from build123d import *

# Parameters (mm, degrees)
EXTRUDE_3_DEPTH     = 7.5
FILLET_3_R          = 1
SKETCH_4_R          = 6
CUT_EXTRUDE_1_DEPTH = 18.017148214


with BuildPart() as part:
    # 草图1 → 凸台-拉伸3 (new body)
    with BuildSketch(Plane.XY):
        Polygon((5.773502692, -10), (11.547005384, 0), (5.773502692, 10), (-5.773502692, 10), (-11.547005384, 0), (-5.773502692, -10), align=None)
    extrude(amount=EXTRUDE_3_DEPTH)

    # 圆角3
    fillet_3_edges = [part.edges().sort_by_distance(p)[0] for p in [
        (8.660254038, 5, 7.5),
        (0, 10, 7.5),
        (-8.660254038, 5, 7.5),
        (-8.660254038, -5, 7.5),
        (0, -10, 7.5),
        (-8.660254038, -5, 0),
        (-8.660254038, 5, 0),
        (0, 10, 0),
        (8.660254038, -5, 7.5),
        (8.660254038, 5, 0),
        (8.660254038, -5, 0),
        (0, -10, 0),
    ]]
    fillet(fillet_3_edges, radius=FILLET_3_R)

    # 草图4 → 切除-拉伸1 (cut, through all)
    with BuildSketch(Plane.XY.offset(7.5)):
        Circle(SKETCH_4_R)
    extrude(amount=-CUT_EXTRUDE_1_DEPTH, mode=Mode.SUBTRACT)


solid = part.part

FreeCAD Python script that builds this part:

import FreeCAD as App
import Part
import Sketcher
from FreeCAD import Vector
Q = App.Units.Quantity


def edges_at(feature, points):
    """Names of the edges that pass closest to the given points."""
    edges = feature.Shape.Edges
    near = lambda p: min(range(len(edges)), key=lambda i: edges[i].distToShape(Part.Vertex(*p))[0])
    return sorted({f"Edge{near(p) + 1}" for p in points})

doc = App.newDocument("Part")
params = doc.addObject("Spreadsheet::Sheet", "Params")
for row, (alias, value) in enumerate([
    ("pad1_length", "7.5 mm"),
    ("fillet_radius", "1 mm"),
    ("sketch2_diameter", "12 mm"),
], start=1):
    params.set(f"A{row}", alias)
    params.set(f"B{row}", "=" + value)
    params.setAlias(f"B{row}", alias)

body = doc.addObject("PartDesign::Body", "Body")

sketch1 = body.newObject("Sketcher::SketchObject", "Sketch")
sketch1.AttachmentSupport = (doc.getObject("XY_Plane"), [""])
sketch1.MapMode = "FlatFace"
sketch1.addGeometry(Part.LineSegment(Vector(6, -10, 0), Vector(12, 0, 0)), False)
sketch1.addGeometry(Part.LineSegment(Vector(12, 0, 0), Vector(6, 10, 0)), False)
sketch1.addGeometry(Part.LineSegment(Vector(6, 10, 0), Vector(-6, 10, 0)), False)
sketch1.addGeometry(Part.LineSegment(Vector(-6, 10, 0), Vector(-12, 0, 0)), False)
sketch1.addGeometry(Part.LineSegment(Vector(-12, 0, 0), Vector(-6, -10, 0)), False)
sketch1.addGeometry(Part.LineSegment(Vector(-6, -10, 0), Vector(6, -10, 0)), False)
sketch1.addConstraint(Sketcher.Constraint("Coincident", 0, 2, 1, 1))
sketch1.addConstraint(Sketcher.Constraint("Coincident", 1, 2, 2, 1))
sketch1.addConstraint(Sketcher.Constraint("Coincident", 2, 2, 3, 1))
sketch1.addConstraint(Sketcher.Constraint("Coincident", 3, 2, 4, 1))
sketch1.addConstraint(Sketcher.Constraint("Coincident", 4, 2, 5, 1))
sketch1.addConstraint(Sketcher.Constraint("Coincident", 5, 2, 0, 1))
sketch1.addConstraint(Sketcher.Constraint("Horizontal", 2))
sketch1.addConstraint(Sketcher.Constraint("Horizontal", 5))
sketch1.addConstraint(Sketcher.Constraint("Symmetric", 0, 2, 3, 2, -1, 1))
sketch1.addConstraint(Sketcher.Constraint("Symmetric", 1, 2, 4, 2, -1, 1))
sketch1.addConstraint(Sketcher.Constraint("PointOnObject", 0, 2, -1))
sketch1.addConstraint(Sketcher.Constraint("Parallel", 0, 3))
sketch1.addConstraint(Sketcher.Constraint("Vertical", 2, 2, 4, 2))
sketch1.addConstraint(Sketcher.Constraint("Angle", 0, Q("60 deg")))
sketch1.addConstraint(Sketcher.Constraint("DistanceY", -1, 1, 1, 2, 10.0))
sketch1.addConstraint(Sketcher.Constraint("DistanceX", 2, 2, 2, 1, 11.547005))
pad1 = body.newObject("PartDesign::Pad", "Pad")
pad1.Profile = sketch1
pad1.setExpression("Length", "Params.pad1_length")
doc.recompute()

fillet = body.newObject("PartDesign::Fillet", "Fillet")
fillet.Base = (pad1, edges_at(pad1, [
    (8.66, 5, 7.5),
    (0, 10, 7.5),
    (-8.66, 5, 7.5),
    (-8.66, -5, 7.5),
    (0, -10, 7.5),
    (-8.66, -5, 0),
    (-8.66, 5, 0),
    (0, 10, 0),
    (8.66, -5, 7.5),
    (8.66, 5, 0),
    (8.66, -5, 0),
    (0, -10, 0),
]))
fillet.setExpression("Radius", "Params.fillet_radius")

sketch2 = body.newObject("Sketcher::SketchObject", "Sketch001")
sketch2.AttachmentSupport = (doc.getObject("XY_Plane"), [""])
sketch2.MapMode = "FlatFace"
sketch2.AttachmentOffset = App.Placement(Vector(0, 0, 7.5), App.Rotation())
sketch2.addGeometry(Part.Circle(Vector(0, 0, 0), Vector(0, 0, 1), 6), False)
sketch2.addConstraint(Sketcher.Constraint("Coincident", 0, 3, -1, 1))
sketch2.addConstraint(Sketcher.Constraint("Diameter", 0, 12.0))
sketch2.setExpression("Constraints[1]", "Params.sketch2_diameter")
pocket1 = body.newObject("PartDesign::Pocket", "Pocket")
pocket1.Profile = sketch2
pocket1.Type = "ThroughAll"

doc.recompute()
